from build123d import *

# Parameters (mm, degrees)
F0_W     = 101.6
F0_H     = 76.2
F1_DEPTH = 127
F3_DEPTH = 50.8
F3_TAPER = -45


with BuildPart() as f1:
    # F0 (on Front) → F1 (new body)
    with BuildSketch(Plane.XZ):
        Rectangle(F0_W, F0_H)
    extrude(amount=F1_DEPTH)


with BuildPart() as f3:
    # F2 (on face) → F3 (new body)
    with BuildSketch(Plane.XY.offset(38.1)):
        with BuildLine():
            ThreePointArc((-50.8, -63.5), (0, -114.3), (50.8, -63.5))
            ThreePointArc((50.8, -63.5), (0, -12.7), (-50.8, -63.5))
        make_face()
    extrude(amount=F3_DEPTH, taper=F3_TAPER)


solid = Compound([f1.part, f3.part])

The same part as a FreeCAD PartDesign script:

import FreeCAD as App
import Part
import Sketcher
from FreeCAD import Vector
Q = App.Units.Quantity

doc = App.newDocument("Part")
params = doc.addObject("Spreadsheet::Sheet", "Params")
for row, (alias, value) in enumerate([
    ("sketch1_width", "4 in"),
    ("sketch1_height", "3 in"),
    ("pad1_length", "5 in"),
    ("sketch2_diameter", "4 in"),
    ("pad2_length", "2 in"),
    ("pad2_taper", "45 deg"),
], start=1):
    params.set(f"A{row}", alias)
    params.set(f"B{row}", "=" + value)
    params.setAlias(f"B{row}", alias)

body = doc.addObject("PartDesign::Body", "Body")

sketch1 = body.newObject("Sketcher::SketchObject", "Sketch")
sketch1.AttachmentSupport = (doc.getObject("XZ_Plane"), [""])
sketch1.MapMode = "FlatFace"
sketch1.addGeometry(Part.LineSegment(Vector(-50.8, 38.1, 0), Vector(-50.8, -38.1, 0)), False)
sketch1.addGeometry(Part.LineSegment(Vector(-50.8, -38.1, 0), Vector(50.8, -38.1, 0)), False)
sketch1.addGeometry(Part.LineSegment(Vector(50.8, -38.1, 0), Vector(50.8, 38.1, 0)), False)
sketch1.addGeometry(Part.LineSegment(Vector(50.8, 38.1, 0), Vector(-50.8, 38.1, 0)), False)
sketch1.addConstraint(Sketcher.Constraint("Coincident", 0, 2, 1, 1))
sketch1.addConstraint(Sketcher.Constraint("Coincident", 1, 2, 2, 1))
sketch1.addConstraint(Sketcher.Constraint("Coincident", 2, 2, 3, 1))
sketch1.addConstraint(Sketcher.Constraint("Coincident", 3, 2, 0, 1))
sketch1.addConstraint(Sketcher.Constraint("Vertical", 0))
sketch1.addConstraint(Sketcher.Constraint("Horizontal", 1))
sketch1.addConstraint(Sketcher.Constraint("Vertical", 2))
sketch1.addConstraint(Sketcher.Constraint("Horizontal", 3))
sketch1.addConstraint(Sketcher.Constraint("Symmetric", 0, 2, 2, 2, -1, 1))
sketch1.addConstraint(Sketcher.Constraint("DistanceX", 1, 1, 1, 2, Q("4 in")))
sketch1.addConstraint(Sketcher.Constraint("DistanceY", 0, 2, 0, 1, Q("3 in")))
sketch1.setExpression("Constraints[9]", "Params.sketch1_width")
sketch1.setExpression("Constraints[10]", "Params.sketch1_height")
pad1 = body.newObject("PartDesign::Pad", "Pad")
pad1.Profile = sketch1
pad1.setExpression("Length", "Params.pad1_length")
body2 = doc.addObject("PartDesign::Body", "Body001")

sketch2 = body2.newObject("Sketcher::SketchObject", "Sketch001")
sketch2.AttachmentSupport = (doc.getObject("XY_Plane001"), [""])
sketch2.MapMode = "FlatFace"
sketch2.AttachmentOffset = App.Placement(Vector(0, 0, 1.5 * 25.4), App.Rotation())
sketch2.addGeometry(Part.Circle(Vector(0, -63.5, 0), Vector(0, 0, 1), 50.8), False)
sketch2.addConstraint(Sketcher.Constraint("PointOnObject", 0, 3, -2))
sketch2.addConstraint(Sketcher.Constraint("Diameter", 0, Q("4 in")))
sketch2.addConstraint(Sketcher.Constraint("DistanceY", 0, 3, -1, 1, Q("2.5 in")))
sketch2.setExpression("Constraints[1]", "Params.sketch2_diameter")
pad2 = body2.newObject("PartDesign::Pad", "Pad001")
pad2.Profile = sketch2
pad2.setExpression("Length", "Params.pad2_length")
pad2.setExpression("TaperAngle", "Params.pad2_taper")

doc.recompute()
